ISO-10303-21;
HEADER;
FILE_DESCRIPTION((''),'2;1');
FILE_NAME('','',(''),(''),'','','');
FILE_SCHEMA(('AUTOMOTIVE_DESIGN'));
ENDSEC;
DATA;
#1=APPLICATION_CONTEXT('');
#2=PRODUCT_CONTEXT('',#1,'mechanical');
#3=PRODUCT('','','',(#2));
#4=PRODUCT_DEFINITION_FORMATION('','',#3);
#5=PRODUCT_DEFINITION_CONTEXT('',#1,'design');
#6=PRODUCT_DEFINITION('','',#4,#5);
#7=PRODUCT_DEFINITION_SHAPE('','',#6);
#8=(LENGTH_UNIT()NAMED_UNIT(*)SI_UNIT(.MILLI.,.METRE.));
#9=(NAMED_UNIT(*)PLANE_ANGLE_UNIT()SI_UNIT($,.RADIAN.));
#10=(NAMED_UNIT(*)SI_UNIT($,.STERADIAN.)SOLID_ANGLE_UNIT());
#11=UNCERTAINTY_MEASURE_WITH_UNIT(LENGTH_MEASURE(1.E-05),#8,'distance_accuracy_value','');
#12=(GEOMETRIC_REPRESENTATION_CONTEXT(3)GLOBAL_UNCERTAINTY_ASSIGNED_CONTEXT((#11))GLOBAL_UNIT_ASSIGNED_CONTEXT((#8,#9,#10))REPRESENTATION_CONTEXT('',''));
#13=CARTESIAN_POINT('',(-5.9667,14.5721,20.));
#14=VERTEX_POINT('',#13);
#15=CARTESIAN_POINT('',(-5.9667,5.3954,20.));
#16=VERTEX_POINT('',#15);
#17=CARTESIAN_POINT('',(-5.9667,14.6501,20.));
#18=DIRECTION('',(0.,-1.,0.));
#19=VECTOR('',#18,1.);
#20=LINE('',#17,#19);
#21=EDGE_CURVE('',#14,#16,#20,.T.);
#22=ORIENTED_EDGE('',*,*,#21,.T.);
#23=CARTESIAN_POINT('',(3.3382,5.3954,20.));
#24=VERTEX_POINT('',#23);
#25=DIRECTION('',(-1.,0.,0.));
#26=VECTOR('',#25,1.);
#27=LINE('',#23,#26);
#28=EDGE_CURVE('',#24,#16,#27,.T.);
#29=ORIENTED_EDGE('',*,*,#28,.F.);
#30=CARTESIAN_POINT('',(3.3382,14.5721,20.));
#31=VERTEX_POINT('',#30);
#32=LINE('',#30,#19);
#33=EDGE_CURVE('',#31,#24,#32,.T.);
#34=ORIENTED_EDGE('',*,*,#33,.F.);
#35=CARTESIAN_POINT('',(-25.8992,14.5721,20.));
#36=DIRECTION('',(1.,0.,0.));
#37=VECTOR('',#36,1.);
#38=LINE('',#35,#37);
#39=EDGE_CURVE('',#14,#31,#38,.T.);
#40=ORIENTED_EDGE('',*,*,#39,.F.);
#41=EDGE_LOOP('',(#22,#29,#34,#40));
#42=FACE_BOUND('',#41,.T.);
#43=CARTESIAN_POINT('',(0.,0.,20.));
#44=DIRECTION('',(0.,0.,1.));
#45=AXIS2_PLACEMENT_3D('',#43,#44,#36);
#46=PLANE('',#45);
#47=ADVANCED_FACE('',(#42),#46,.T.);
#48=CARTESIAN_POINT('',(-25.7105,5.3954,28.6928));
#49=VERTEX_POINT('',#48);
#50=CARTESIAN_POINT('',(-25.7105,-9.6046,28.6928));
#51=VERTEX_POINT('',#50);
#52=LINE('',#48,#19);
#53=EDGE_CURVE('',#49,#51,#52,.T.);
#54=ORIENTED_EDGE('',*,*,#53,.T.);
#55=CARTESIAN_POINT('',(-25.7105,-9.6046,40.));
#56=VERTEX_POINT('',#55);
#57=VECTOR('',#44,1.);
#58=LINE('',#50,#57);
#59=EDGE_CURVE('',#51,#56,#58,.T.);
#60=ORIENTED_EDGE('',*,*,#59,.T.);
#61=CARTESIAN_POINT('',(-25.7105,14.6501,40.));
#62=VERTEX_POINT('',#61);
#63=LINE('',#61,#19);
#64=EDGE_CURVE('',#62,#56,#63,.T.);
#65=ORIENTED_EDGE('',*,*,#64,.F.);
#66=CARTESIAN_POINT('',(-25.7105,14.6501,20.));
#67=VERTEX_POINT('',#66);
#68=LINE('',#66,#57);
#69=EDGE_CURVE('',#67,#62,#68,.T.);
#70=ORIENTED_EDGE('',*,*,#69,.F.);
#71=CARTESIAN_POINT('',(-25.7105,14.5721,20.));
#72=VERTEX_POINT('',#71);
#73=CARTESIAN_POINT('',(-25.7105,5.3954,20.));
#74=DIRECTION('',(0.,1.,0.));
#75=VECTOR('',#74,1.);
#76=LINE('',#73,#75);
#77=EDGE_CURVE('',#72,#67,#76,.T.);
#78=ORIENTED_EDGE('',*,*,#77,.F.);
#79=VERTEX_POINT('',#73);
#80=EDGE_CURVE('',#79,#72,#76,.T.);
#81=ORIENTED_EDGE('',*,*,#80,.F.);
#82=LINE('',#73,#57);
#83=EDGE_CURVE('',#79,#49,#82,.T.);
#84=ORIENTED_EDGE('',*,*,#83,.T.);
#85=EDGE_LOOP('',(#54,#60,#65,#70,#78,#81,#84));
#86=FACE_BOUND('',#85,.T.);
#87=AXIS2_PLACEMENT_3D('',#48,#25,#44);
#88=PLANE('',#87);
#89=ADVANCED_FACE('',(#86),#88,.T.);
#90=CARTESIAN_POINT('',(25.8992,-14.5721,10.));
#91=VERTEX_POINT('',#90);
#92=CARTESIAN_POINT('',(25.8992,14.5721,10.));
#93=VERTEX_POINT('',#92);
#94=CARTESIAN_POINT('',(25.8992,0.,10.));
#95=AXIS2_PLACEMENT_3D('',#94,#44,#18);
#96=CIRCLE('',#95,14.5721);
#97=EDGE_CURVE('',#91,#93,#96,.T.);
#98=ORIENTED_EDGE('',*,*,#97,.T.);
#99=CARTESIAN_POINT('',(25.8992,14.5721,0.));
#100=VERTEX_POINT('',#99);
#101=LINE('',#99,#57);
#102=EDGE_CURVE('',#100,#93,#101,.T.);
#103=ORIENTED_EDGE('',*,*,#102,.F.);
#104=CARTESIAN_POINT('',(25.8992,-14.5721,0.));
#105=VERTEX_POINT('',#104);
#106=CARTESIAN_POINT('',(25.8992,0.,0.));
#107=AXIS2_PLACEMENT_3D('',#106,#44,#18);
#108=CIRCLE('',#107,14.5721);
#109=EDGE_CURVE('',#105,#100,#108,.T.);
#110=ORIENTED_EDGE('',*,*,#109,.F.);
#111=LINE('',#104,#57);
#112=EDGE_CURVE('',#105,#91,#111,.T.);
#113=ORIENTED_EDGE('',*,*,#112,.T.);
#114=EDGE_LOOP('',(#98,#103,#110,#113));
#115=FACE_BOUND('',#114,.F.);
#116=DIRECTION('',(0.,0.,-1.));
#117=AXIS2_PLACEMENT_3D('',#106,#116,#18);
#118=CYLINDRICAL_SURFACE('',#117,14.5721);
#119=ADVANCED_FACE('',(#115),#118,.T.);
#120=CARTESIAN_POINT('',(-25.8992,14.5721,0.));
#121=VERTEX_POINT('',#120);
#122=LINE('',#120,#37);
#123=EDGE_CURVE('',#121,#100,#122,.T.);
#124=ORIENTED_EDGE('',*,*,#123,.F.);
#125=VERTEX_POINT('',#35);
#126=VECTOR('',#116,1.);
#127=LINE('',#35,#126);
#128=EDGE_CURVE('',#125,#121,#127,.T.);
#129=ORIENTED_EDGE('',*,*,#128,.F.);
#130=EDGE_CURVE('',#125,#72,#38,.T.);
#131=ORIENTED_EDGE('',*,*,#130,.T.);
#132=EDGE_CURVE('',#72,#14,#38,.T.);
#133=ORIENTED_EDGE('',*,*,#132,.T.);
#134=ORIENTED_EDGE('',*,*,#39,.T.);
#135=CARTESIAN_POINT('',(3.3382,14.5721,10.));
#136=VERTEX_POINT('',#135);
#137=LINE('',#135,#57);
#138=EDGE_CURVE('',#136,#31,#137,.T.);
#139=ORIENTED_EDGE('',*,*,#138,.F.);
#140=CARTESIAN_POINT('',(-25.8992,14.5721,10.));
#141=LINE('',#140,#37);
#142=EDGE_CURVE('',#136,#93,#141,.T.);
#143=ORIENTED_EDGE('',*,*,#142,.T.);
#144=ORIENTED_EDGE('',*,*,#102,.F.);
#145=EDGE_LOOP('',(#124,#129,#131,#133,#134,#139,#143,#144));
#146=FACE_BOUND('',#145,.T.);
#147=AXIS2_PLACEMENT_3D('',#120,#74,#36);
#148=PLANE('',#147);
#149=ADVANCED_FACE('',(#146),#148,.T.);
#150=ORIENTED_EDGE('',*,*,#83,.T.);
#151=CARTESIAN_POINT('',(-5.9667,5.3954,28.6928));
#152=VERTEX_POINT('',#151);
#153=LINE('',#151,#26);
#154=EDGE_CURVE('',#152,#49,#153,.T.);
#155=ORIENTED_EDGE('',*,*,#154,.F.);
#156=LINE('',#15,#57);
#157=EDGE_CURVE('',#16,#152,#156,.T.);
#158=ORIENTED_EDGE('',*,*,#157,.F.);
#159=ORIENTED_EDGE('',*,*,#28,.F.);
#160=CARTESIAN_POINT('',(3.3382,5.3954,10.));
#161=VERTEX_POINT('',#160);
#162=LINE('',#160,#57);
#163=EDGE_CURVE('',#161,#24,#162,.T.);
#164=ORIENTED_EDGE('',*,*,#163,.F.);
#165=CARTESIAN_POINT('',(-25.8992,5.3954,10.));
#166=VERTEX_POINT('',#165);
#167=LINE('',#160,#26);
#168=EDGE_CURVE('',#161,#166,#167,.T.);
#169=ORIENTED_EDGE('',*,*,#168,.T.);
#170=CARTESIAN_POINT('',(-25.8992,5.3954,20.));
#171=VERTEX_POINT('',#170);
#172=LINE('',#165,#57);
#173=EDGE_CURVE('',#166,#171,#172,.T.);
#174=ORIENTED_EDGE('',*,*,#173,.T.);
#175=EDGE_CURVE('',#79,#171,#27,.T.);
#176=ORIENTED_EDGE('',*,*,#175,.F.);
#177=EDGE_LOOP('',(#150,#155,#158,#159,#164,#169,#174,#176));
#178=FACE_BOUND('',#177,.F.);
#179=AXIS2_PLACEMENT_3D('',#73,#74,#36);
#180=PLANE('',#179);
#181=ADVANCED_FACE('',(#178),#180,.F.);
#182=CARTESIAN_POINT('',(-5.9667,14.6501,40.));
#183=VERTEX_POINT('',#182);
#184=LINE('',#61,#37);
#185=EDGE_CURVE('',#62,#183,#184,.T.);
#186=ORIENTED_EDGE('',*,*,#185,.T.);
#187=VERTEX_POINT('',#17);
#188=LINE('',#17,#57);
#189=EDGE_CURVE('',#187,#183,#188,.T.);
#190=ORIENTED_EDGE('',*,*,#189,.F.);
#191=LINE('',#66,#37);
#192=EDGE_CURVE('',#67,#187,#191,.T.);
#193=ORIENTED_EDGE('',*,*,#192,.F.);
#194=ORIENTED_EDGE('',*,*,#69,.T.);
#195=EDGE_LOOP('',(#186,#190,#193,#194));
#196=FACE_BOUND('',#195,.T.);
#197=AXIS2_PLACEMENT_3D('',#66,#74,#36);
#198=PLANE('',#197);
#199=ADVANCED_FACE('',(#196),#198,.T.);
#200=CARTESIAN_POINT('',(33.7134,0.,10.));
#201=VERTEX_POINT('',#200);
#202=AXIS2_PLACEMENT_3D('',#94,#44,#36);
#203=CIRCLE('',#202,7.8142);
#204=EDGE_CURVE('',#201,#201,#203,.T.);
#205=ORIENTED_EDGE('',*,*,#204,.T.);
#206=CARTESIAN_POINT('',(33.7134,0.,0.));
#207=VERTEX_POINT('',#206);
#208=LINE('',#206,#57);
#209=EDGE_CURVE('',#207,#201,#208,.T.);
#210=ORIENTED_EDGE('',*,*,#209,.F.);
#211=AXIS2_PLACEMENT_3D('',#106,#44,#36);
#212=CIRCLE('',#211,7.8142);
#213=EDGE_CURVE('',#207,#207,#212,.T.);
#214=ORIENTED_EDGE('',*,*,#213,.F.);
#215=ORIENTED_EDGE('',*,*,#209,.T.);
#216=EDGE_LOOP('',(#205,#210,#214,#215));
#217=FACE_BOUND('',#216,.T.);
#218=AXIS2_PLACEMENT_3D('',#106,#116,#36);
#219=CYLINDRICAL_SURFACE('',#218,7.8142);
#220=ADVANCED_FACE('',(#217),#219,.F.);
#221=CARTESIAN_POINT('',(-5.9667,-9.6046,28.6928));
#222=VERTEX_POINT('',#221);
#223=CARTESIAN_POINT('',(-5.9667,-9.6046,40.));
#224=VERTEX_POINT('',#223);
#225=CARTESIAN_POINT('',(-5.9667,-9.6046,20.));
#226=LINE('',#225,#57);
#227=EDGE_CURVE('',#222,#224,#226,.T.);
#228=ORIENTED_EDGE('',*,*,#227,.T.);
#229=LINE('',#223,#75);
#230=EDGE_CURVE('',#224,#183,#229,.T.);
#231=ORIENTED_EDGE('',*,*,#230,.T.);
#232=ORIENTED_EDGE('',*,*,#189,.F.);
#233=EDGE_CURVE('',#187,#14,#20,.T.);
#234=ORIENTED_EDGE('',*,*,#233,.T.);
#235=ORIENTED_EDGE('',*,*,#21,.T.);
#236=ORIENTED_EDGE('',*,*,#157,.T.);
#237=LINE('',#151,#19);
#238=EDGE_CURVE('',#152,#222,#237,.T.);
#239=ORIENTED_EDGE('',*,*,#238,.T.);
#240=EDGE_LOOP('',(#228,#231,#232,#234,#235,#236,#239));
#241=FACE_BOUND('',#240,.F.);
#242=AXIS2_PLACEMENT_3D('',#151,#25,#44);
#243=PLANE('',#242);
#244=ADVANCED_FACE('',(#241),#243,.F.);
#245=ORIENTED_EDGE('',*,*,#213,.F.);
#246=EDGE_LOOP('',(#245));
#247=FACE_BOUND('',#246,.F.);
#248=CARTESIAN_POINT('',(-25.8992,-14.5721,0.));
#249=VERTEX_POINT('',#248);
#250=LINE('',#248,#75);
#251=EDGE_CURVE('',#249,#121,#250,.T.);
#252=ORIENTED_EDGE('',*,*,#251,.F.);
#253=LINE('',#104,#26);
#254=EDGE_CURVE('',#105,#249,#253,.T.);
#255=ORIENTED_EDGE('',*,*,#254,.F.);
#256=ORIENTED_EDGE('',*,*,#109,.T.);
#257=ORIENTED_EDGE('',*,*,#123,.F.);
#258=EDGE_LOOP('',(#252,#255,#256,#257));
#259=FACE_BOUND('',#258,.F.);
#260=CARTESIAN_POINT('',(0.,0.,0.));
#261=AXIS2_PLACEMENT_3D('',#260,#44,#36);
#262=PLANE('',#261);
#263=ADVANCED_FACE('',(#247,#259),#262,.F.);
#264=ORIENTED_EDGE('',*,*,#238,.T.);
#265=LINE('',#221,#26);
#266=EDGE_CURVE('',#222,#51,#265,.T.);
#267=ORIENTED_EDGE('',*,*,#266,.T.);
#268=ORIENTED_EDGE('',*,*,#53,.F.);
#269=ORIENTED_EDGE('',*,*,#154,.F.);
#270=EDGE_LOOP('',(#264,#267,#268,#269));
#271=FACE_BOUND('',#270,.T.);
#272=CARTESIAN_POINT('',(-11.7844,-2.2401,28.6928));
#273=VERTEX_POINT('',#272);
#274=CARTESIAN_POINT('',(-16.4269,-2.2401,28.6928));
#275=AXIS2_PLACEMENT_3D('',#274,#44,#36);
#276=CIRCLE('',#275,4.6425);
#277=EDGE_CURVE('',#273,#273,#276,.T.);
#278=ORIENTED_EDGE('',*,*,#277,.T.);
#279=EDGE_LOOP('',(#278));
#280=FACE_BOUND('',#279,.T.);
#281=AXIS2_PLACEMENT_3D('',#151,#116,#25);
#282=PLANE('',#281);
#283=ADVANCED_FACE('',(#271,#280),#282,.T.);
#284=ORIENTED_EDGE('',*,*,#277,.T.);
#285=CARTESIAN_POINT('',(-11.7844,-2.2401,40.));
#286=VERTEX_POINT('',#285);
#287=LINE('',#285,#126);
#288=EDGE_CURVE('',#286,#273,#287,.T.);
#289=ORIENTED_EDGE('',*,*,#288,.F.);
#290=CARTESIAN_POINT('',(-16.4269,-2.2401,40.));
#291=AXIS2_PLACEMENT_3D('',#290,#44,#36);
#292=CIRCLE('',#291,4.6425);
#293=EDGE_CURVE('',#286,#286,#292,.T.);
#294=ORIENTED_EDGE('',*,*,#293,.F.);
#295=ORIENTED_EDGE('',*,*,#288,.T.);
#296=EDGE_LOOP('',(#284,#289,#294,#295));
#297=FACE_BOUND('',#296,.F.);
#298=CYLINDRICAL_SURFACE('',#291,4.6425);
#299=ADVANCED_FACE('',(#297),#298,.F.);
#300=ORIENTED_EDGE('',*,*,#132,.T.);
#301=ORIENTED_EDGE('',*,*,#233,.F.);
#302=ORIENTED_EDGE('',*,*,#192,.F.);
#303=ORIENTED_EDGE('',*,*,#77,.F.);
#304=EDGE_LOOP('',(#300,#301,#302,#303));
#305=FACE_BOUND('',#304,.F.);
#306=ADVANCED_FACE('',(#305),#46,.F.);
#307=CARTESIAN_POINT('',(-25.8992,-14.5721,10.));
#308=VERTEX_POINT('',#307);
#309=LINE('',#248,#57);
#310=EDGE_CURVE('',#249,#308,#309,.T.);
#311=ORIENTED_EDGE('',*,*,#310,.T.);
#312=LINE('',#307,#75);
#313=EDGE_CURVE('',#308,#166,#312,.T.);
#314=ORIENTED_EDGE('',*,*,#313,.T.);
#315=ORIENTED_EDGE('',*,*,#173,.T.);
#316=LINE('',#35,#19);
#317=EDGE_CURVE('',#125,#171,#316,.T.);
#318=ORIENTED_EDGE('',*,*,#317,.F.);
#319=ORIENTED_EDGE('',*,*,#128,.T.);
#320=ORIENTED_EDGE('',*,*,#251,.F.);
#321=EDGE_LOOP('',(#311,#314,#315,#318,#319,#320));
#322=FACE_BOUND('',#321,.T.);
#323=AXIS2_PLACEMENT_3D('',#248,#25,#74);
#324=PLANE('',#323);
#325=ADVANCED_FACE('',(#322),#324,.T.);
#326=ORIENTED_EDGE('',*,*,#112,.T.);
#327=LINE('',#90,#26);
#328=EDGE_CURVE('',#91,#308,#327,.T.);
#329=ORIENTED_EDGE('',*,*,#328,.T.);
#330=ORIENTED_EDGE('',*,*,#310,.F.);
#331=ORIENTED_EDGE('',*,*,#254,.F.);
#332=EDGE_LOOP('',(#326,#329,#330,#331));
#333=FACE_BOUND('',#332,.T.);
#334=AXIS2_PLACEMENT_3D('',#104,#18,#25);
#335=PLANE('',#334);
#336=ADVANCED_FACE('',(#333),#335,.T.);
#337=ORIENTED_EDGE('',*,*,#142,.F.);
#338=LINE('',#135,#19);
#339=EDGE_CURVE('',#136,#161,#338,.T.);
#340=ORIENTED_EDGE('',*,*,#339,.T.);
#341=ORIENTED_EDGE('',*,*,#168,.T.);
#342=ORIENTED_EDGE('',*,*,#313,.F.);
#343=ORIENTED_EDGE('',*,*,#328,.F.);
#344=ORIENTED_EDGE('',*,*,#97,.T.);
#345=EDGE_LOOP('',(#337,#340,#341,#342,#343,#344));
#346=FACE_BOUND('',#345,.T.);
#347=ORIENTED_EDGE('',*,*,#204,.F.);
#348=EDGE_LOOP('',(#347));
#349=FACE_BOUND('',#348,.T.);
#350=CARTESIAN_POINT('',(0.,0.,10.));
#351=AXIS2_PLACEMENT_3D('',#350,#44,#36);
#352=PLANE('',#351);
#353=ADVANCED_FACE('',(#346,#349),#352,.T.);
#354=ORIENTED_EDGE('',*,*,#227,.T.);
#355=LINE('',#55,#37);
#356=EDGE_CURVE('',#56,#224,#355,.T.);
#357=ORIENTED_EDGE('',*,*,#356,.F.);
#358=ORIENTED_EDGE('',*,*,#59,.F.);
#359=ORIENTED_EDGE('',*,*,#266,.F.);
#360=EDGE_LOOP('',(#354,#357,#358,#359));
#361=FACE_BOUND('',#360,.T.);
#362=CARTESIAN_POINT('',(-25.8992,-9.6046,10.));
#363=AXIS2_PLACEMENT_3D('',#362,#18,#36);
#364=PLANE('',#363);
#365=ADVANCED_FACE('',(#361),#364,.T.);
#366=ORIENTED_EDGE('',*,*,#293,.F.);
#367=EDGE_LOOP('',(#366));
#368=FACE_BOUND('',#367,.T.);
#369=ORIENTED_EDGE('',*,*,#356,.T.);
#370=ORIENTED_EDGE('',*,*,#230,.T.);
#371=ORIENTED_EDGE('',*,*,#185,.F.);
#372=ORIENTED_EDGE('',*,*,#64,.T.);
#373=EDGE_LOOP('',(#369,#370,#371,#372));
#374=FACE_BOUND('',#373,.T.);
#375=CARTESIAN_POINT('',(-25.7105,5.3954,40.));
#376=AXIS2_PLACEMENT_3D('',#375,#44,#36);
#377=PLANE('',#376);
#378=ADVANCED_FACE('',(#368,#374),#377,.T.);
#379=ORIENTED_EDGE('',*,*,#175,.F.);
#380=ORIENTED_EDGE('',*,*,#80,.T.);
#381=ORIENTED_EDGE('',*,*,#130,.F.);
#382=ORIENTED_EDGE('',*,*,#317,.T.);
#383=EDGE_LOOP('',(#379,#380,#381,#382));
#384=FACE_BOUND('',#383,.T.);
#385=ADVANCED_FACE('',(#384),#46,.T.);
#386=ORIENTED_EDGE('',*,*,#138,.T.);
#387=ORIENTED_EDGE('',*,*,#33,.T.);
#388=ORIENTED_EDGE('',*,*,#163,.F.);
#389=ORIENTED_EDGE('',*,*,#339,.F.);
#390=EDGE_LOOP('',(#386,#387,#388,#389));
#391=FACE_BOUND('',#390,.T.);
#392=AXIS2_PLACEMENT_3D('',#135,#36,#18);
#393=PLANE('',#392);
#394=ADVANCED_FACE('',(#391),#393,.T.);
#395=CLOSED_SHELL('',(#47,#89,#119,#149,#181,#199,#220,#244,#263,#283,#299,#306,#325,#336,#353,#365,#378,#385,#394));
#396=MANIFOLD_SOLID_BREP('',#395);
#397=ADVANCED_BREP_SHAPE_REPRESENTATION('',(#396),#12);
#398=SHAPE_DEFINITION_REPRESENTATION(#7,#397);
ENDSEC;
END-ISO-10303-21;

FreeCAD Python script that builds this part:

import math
import FreeCAD as App
import Part
import Sketcher

V = App.Vector
Q = App.Units.Quantity

doc = App.newDocument("Part")
params = doc.addObject("Spreadsheet::Sheet", "Params")
for row, (alias, value) in enumerate([
    ("pad1_length", "10 mm"),
    ("pad2_length", "10 mm"),
    ("pad3_length", "20 mm"),
    ("pad4_length", "15 mm"),
    ("pocket1_length", "15 mm"),
], start=1):
    params.set(f"A{row}", alias)
    params.set(f"B{row}", "=" + value)
    params.setAlias(f"B{row}", alias)

body = doc.addObject("PartDesign::Body", "Body")

sketch1 = body.newObject("Sketcher::SketchObject", "Sketch")
sketch1.AttachmentSupport = (doc.getObject("XY_Plane"), [""])
sketch1.MapMode = "FlatFace"
sketch1.addGeometry([
    Part.LineSegment(V(-25.8992, -14.5721, 0), V(25.8992, -14.5721, 0)),
    Part.ArcOfCircle(Part.Circle(V(25.8992, 0, 0), V(0, 0, 1), 14.5721), math.radians(-90), math.radians(90)),
    Part.LineSegment(V(25.8992, 14.5721, 0), V(-25.8992, 14.5721, 0)),
    Part.LineSegment(V(-25.8992, 14.5721, 0), V(-25.8992, -14.5721, 0)),
    Part.Circle(V(25.8992, 0, 0), V(0, 0, 1), 7.8142),
], False)
sketch1.addConstraint([
    Sketcher.Constraint("Tangent", 0, 2, 1, 1),
    Sketcher.Constraint("Tangent", 1, 2, 2, 1),
    Sketcher.Constraint("Coincident", 2, 2, 3, 1),
    Sketcher.Constraint("Coincident", 3, 2, 0, 1),
    Sketcher.Constraint("Horizontal", 0),
    Sketcher.Constraint("Horizontal", 2),
    Sketcher.Constraint("Vertical", 3),
    Sketcher.Constraint("Coincident", 4, 3, 1, 3),
    Sketcher.Constraint("Symmetric", 0, 2, 2, 2, -1, 1),
    Sketcher.Constraint("Radius", 1, Q("14.572 mm")),
    Sketcher.Constraint("Diameter", 4, Q("15.6284 mm")),
    Sketcher.Constraint("DistanceX", 0, 1, 0, 2, Q("51.7984 mm")),
])
pad1 = body.newObject("PartDesign::Pad", "Pad")
pad1.Profile = sketch1
pad1.setExpression("Length", "Params.pad1_length")

sketch2 = body.newObject("Sketcher::SketchObject", "Sketch001")
sketch2.AttachmentSupport = (doc.getObject("XY_Plane"), [""])
sketch2.MapMode = "FlatFace"
sketch2.AttachmentOffset = App.Placement(V(0, 0, 10), App.Rotation())
sketch2.addGeometry([
    Part.LineSegment(V(3.3382, 14.5721, 0), V(-25.8992, 14.5721, 0)),
    Part.LineSegment(V(-25.8992, 14.5721, 0), V(-25.8992, 5.3954, 0)),
    Part.LineSegment(V(-25.8992, 5.3954, 0), V(3.3382, 5.3954, 0)),
    Part.LineSegment(V(3.3382, 5.3954, 0), V(3.3382, 14.5721, 0)),
], False)
sketch2.addConstraint([
    Sketcher.Constraint("Coincident", 0, 2, 1, 1),
    Sketcher.Constraint("Coincident", 1, 2, 2, 1),
    Sketcher.Constraint("Coincident", 2, 2, 3, 1),
    Sketcher.Constraint("Coincident", 3, 2, 0, 1),
    Sketcher.Constraint("Horizontal", 0),
    Sketcher.Constraint("Vertical", 1),
    Sketcher.Constraint("Horizontal", 2),
    Sketcher.Constraint("Vertical", 3),
    Sketcher.Constraint("DistanceX", 0, 2, 0, 1, Q("29.2374 mm")),
    Sketcher.Constraint("DistanceY", 1, 2, 1, 1, Q("9.1767 mm")),
    Sketcher.Constraint("DistanceY", -1, 1, 0, 2, Q("14.572 mm")),
    Sketcher.Constraint("DistanceX", 0, 2, -1, 1, Q("25.8992 mm")),
])
pad2 = body.newObject("PartDesign::Pad", "Pad001")
pad2.Profile = sketch2
pad2.setExpression("Length", "Params.pad2_length")

sketch3 = body.newObject("Sketcher::SketchObject", "Sketch002")
sketch3.AttachmentSupport = (doc.getObject("XY_Plane"), [""])
sketch3.MapMode = "FlatFace"
sketch3.AttachmentOffset = App.Placement(V(0, 0, 20), App.Rotation())
sketch3.addGeometry([
    Part.LineSegment(V(-25.7105, 14.6501, 0), V(-25.7105, 5.3954, 0)),
    Part.LineSegment(V(-25.7105, 5.3954, 0), V(-5.9667, 5.3954, 0)),
    Part.LineSegment(V(-5.9667, 5.3954, 0), V(-5.9667, 14.6501, 0)),
    Part.LineSegment(V(-5.9667, 14.6501, 0), V(-25.7105, 14.6501, 0)),
], False)
sketch3.addConstraint([
    Sketcher.Constraint("Coincident", 0, 2, 1, 1),
    Sketcher.Constraint("Coincident", 1, 2, 2, 1),
    Sketcher.Constraint("Coincident", 2, 2, 3, 1),
    Sketcher.Constraint("Coincident", 3, 2, 0, 1),
    Sketcher.Constraint("Vertical", 0),
    Sketcher.Constraint("Horizontal", 1),
    Sketcher.Constraint("Vertical", 2),
    Sketcher.Constraint("Horizontal", 3),
    Sketcher.Constraint("DistanceY", -1, 1, 2, 2, Q("14.65 mm")),
    Sketcher.Constraint("DistanceX", 1, 1, 1, 2, Q("19.7438 mm")),
    Sketcher.Constraint("DistanceY", 0, 2, 0, 1, Q("9.2547 mm")),
    Sketcher.Constraint("DistanceX", 0, 2, -1, 1, Q("25.7105 mm")),
])
pad3 = body.newObject("PartDesign::Pad", "Pad002")
pad3.Profile = sketch3
pad3.setExpression("Length", "Params.pad3_length")

sketch4 = body.newObject("Sketcher::SketchObject", "Sketch003")
sketch4.AttachmentSupport = (doc.getObject("XZ_Plane"), [""])
sketch4.MapMode = "FlatFace"
sketch4.AttachmentOffset = App.Placement(V(0, 0, -5.3954), App.Rotation())
sketch4.addGeometry([
    Part.LineSegment(V(-5.9667, 40, 0), V(-25.7105, 40, 0)),
    Part.LineSegment(V(-25.7105, 40, 0), V(-25.7105, 28.6928, 0)),
    Part.LineSegment(V(-25.7105, 28.6928, 0), V(-5.9667, 28.6928, 0)),
    Part.LineSegment(V(-5.9667, 28.6928, 0), V(-5.9667, 40, 0)),
], False)
sketch4.addConstraint([
    Sketcher.Constraint("Coincident", 0, 2, 1, 1),
    Sketcher.Constraint("Coincident", 1, 2, 2, 1),
    Sketcher.Constraint("Coincident", 2, 2, 3, 1),
    Sketcher.Constraint("Coincident", 3, 2, 0, 1),
    Sketcher.Constraint("Horizontal", 0),
    Sketcher.Constraint("Vertical", 1),
    Sketcher.Constraint("Horizontal", 2),
    Sketcher.Constraint("Vertical", 3),
    Sketcher.Constraint("DistanceY", -1, 1, 0, 2, Q("40 mm")),
    Sketcher.Constraint("DistanceX", 0, 2, 0, 1, Q("19.7438 mm")),
    Sketcher.Constraint("DistanceY", 1, 2, 1, 1, Q("11.3072 mm")),
    Sketcher.Constraint("DistanceX", 0, 2, -1, 1, Q("25.7105 mm")),
])
pad4 = body.newObject("PartDesign::Pad", "Pad003")
pad4.Profile = sketch4
pad4.setExpression("Length", "Params.pad4_length")

sketch5 = body.newObject("Sketcher::SketchObject", "Sketch004")
sketch5.AttachmentSupport = (doc.getObject("XY_Plane"), [""])
sketch5.MapMode = "FlatFace"
sketch5.AttachmentOffset = App.Placement(V(0, 0, 40), App.Rotation())
sketch5.addGeometry(Part.Circle(V(-16.4269, -2.2401, 0), V(0, 0, 1), 4.6425), False)
sketch5.addConstraint([
    Sketcher.Constraint("Diameter", 0, Q("9.285 mm")),
    Sketcher.Constraint("DistanceY", 0, 3, -1, 1, Q("2.24 mm")),
    Sketcher.Constraint("DistanceX", 0, 3, -1, 1, Q("16.427 mm")),
])
pocket1 = body.newObject("PartDesign::Pocket", "Pocket")
pocket1.Profile = sketch5
pocket1.setExpression("Length", "Params.pocket1_length")

doc.recompute()
